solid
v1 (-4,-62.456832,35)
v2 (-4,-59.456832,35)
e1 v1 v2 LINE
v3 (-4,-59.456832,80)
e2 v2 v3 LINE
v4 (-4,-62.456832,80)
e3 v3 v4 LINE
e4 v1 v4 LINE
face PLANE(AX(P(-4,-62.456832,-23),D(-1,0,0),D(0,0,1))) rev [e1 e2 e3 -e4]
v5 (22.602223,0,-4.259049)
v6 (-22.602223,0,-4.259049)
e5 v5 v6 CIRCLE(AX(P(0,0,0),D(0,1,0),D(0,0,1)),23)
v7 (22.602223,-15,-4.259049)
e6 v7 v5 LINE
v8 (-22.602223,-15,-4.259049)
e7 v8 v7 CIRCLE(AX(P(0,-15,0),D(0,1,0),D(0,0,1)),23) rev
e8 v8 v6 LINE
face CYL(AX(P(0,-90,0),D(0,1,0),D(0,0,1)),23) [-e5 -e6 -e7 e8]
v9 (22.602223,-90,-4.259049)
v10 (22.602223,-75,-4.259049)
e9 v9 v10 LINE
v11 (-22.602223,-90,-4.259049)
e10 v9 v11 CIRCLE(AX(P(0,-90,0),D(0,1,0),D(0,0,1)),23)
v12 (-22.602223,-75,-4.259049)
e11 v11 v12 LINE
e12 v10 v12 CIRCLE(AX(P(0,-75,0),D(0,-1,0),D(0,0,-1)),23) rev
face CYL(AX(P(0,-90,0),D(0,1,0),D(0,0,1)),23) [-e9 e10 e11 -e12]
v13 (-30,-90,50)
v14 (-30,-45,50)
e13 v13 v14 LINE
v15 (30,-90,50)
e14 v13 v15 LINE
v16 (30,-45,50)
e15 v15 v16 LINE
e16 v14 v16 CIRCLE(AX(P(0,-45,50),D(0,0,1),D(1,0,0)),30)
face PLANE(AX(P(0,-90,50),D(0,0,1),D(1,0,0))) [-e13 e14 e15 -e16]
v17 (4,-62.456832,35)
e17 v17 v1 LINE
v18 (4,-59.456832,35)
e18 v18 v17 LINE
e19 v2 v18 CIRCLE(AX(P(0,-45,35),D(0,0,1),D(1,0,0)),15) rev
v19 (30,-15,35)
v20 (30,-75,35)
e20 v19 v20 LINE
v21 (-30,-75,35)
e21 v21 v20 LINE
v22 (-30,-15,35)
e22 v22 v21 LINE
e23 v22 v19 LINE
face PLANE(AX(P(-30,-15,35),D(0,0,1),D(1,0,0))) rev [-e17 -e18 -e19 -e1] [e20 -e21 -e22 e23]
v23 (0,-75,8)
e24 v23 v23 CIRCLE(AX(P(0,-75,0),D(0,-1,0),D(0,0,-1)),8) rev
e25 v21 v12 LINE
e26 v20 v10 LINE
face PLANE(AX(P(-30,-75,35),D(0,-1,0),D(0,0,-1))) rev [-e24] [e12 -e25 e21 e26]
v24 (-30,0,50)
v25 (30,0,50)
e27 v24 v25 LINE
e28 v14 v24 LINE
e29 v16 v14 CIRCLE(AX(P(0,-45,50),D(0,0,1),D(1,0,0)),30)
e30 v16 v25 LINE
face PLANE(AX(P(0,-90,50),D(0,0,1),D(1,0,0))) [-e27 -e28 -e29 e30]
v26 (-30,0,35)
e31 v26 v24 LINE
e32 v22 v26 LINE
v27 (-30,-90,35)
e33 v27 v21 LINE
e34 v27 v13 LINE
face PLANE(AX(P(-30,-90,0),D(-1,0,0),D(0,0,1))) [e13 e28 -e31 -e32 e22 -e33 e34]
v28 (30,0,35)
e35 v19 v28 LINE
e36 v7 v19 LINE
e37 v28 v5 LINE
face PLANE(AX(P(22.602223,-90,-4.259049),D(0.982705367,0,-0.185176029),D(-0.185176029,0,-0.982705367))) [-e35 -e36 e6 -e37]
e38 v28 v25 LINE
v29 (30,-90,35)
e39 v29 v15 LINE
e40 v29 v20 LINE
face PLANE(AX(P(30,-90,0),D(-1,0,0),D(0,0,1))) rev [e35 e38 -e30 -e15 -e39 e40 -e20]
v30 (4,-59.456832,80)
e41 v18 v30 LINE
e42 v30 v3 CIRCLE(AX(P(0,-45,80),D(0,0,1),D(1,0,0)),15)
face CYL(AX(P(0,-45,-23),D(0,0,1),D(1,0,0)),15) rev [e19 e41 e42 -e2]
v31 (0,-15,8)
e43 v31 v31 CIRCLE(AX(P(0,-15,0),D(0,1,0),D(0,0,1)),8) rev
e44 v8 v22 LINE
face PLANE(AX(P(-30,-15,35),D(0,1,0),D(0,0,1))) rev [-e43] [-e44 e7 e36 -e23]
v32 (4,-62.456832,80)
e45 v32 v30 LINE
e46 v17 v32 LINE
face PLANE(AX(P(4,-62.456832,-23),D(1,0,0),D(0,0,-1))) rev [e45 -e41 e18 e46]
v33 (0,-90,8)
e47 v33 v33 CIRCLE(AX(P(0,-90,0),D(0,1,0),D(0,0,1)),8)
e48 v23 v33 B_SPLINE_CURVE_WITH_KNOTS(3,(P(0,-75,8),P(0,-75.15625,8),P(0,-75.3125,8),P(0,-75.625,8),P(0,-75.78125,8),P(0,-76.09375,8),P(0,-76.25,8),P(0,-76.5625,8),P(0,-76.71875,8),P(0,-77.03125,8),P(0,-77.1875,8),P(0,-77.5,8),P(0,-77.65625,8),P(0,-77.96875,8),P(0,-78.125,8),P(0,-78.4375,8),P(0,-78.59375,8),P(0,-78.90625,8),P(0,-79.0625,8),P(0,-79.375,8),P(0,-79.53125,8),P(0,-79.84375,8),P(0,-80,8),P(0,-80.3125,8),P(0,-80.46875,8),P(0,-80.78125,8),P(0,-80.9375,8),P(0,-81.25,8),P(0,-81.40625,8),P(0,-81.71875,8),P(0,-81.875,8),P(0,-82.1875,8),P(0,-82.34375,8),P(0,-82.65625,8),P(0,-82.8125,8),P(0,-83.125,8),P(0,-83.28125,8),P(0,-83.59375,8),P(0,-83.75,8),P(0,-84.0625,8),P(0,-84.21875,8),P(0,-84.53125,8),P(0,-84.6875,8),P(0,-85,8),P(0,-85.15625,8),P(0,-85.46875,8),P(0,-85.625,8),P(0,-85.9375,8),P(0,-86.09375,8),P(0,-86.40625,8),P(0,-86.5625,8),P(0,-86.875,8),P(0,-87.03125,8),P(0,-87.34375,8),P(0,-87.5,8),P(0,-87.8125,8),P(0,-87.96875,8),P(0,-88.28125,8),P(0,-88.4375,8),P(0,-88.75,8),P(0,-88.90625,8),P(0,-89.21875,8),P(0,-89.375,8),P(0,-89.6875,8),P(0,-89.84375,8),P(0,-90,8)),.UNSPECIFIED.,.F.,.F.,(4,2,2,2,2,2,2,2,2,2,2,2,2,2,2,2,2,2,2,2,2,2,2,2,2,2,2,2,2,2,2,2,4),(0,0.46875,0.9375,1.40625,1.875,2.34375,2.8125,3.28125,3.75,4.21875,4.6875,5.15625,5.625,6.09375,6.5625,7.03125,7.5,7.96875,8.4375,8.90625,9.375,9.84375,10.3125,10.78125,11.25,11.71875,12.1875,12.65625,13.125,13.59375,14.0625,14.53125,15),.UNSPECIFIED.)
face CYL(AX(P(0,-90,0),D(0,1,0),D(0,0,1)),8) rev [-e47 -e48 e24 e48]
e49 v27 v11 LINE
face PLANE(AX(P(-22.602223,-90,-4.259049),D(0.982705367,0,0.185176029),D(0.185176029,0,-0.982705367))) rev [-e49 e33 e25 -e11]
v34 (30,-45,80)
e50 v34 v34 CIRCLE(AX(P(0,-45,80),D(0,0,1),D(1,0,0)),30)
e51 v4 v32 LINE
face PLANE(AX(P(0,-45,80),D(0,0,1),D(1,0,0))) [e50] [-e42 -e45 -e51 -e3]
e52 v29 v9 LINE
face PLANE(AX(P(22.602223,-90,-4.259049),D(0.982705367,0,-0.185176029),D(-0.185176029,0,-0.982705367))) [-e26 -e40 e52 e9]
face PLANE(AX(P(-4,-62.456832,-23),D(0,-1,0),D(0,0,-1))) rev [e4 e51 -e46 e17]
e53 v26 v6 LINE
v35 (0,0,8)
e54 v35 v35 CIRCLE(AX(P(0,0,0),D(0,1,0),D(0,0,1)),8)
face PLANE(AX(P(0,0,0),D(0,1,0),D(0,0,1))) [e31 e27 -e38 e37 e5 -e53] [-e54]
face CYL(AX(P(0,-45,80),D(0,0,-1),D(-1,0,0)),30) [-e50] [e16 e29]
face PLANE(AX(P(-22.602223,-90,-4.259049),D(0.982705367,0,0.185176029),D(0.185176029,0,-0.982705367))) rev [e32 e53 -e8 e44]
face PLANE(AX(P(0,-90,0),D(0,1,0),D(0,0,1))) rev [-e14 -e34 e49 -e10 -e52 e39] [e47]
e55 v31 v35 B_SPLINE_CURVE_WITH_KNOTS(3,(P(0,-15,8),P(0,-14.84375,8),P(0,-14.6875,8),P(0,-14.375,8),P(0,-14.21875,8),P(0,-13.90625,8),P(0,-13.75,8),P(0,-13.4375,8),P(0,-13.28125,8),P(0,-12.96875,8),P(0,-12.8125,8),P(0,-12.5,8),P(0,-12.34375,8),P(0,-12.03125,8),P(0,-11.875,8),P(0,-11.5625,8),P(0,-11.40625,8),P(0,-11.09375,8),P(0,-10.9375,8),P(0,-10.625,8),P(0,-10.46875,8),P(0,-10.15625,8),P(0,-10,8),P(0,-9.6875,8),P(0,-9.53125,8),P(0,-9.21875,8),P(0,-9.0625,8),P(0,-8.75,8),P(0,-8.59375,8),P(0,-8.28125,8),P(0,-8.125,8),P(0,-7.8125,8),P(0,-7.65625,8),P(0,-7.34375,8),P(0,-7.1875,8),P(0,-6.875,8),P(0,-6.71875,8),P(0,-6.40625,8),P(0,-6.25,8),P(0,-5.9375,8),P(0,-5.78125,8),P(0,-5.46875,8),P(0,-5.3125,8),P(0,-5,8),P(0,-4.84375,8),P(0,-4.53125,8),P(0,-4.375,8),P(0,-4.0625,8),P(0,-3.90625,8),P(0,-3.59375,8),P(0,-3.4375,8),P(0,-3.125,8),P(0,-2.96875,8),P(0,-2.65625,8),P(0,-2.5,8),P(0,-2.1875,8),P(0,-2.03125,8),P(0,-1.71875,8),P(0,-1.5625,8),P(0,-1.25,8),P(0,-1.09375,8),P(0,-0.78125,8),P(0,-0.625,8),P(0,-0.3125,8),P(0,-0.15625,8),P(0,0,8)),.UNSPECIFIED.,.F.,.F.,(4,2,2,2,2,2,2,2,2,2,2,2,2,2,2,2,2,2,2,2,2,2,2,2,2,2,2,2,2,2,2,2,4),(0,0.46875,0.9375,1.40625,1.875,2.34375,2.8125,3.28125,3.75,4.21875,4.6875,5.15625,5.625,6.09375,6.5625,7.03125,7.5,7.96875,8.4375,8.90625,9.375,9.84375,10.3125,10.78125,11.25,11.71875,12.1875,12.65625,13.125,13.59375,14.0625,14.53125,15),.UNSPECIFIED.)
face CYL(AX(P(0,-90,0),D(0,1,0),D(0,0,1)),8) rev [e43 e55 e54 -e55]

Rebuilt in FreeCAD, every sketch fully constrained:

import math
import FreeCAD as App
import Part
import Sketcher

V = App.Vector

doc = App.newDocument("Part")
body = doc.addObject("PartDesign::Body", "Body")

# Sketch on XZ plane
sketch1 = body.newObject("Sketcher::SketchObject", "Sketch")
sketch1.AttachmentSupport = (doc.getObject("XZ_Plane"), [""])
sketch1.MapMode = "FlatFace"
sketch1.addGeometry([
    Part.LineSegment(V(30, 35, 0), V(23, -4, 0)),  # 0
    Part.ArcOfCircle(Part.Circle(V(0, 0, 0), V(0, 0, 1), 23), math.radians(-169), math.radians(-11)),  # 1
    Part.LineSegment(V(-23, -4, 0), V(-30, 35, 0)),  # 2
    Part.LineSegment(V(-30, 35, 0), V(-30, 50, 0)),  # 3
    Part.LineSegment(V(-30, 50, 0), V(30, 50, 0)),  # 4
    Part.LineSegment(V(30, 50, 0), V(30, 35, 0)),  # 5
    Part.Circle(V(0, 0, 0), V(0, 0, 1), 8),  # 6
], False)
sketch1.addConstraint([
    Sketcher.Constraint("Tangent", 0, 2, 1, 2),
    Sketcher.Constraint("Tangent", 1, 1, 2, 1),
    Sketcher.Constraint("Coincident", 2, 2, 3, 1),
    Sketcher.Constraint("Coincident", 3, 2, 4, 1),
    Sketcher.Constraint("Coincident", 4, 2, 5, 1),
    Sketcher.Constraint("Coincident", 5, 2, 0, 1),
    Sketcher.Constraint("Vertical", 3),
    Sketcher.Constraint("Horizontal", 4),
    Sketcher.Constraint("Vertical", 5),
    Sketcher.Constraint("Coincident", 1, 3, -1, 1),
    Sketcher.Constraint("Coincident", 6, 3, -1, 1),
    Sketcher.Constraint("Symmetric", 2, 2, 5, 2, -2),
    Sketcher.Constraint("Diameter", 6, 16.0),
    Sketcher.Constraint("Radius", 1, 23.0),
    Sketcher.Constraint("DistanceX", 4, 1, 4, 2, 60.0),
    Sketcher.Constraint("DistanceY", 3, 1, 3, 2, 15.0),
    Sketcher.Constraint("DistanceY", -1, 1, 2, 2, 35.0),
])
pad1 = body.newObject("PartDesign::Pad", "Pad")
pad1.Profile = sketch1
pad1.Length = 90

# Sketch on XY plane
sketch2 = body.newObject("Sketcher::SketchObject", "Sketch001")
sketch2.AttachmentSupport = (doc.getObject("XY_Plane"), [""])
sketch2.MapMode = "FlatFace"
sketch2.AttachmentOffset = App.Placement(V(0, 0, 50), App.Rotation())
sketch2.addGeometry(Part.Circle(V(0, -45, 0), V(0, 0, 1), 30), False)
sketch2.addConstraint([
    Sketcher.Constraint("PointOnObject", 0, 3, -2),
    Sketcher.Constraint("Diameter", 0, 60.0),
    Sketcher.Constraint("DistanceY", 0, 3, -1, 1, 45.0),
])
pad2 = body.newObject("PartDesign::Pad", "Pad001")
pad2.Profile = sketch2
pad2.Length = 30

# Sketch on XY plane
sketch3 = body.newObject("Sketcher::SketchObject", "Sketch002")
sketch3.AttachmentSupport = (doc.getObject("XY_Plane"), [""])
sketch3.MapMode = "FlatFace"
sketch3.AttachmentOffset = App.Placement(V(0, 0, 80), App.Rotation())
sketch3.addGeometry([
    Part.LineSegment(V(-4, -62.5, 0), V(4, -62.5, 0)),
    Part.LineSegment(V(4, -62.5, 0), V(4, -59.5, 0)),
    Part.ArcOfCircle(Part.Circle(V(0, -45, 0), V(0, 0, 1), 15), math.radians(-75), math.radians(255)),
    Part.LineSegment(V(-4, -59.5, 0), V(-4, -62.5, 0)),
], False)
sketch3.addConstraint([
    Sketcher.Constraint("Coincident", 0, 2, 1, 1),
    Sketcher.Constraint("Coincident", 1, 2, 2, 1),
    Sketcher.Constraint("Coincident", 2, 2, 3, 1),
    Sketcher.Constraint("Coincident", 3, 2, 0, 1),
    Sketcher.Constraint("Horizontal", 0),
    Sketcher.Constraint("Vertical", 1),
    Sketcher.Constraint("Vertical", 3),
    Sketcher.Constraint("Symmetric", 1, 2, 2, 2, -2),
    Sketcher.Constraint("Radius", 2, 15.0),
    Sketcher.Constraint("DistanceX", 0, 1, 0, 2, 8.0),
    Sketcher.Constraint("DistanceY", 1, 1, 1, 2, 3.0),
    Sketcher.Constraint("DistanceY", 2, 3, -1, 1, 45.0),
])
pocket1 = body.newObject("PartDesign::Pocket", "Pocket")
pocket1.Profile = sketch3
pocket1.Type = "ThroughAll"

# Sketch on YZ plane
sketch4 = body.newObject("Sketcher::SketchObject", "Sketch003")
sketch4.AttachmentSupport = (doc.getObject("YZ_Plane"), [""])
sketch4.MapMode = "FlatFace"
sketch4.AttachmentOffset = App.Placement(V(0, 0, 30), App.Rotation())
sketch4.addGeometry([
    Part.LineSegment(V(-15, 35, 0), V(-75, 35, 0)),
    Part.LineSegment(V(-75, 35, 0), V(-75, -23, 0)),
    Part.LineSegment(V(-75, -23, 0), V(-15, -23, 0)),
    Part.LineSegment(V(-15, -23, 0), V(-15, 35, 0)),
], False)
sketch4.addConstraint([
    Sketcher.Constraint("Coincident", 0, 2, 1, 1),
    Sketcher.Constraint("Coincident", 1, 2, 2, 1),
    Sketcher.Constraint("Coincident", 2, 2, 3, 1),
    Sketcher.Constraint("Coincident", 3, 2, 0, 1),
    Sketcher.Constraint("Horizontal", 0),
    Sketcher.Constraint("Vertical", 1),
    Sketcher.Constraint("Horizontal", 2),
    Sketcher.Constraint("Vertical", 3),
    Sketcher.Constraint("DistanceX", 0, 2, 0, 1, 60.0),
    Sketcher.Constraint("DistanceY", 1, 2, 1, 1, 58.0),
    Sketcher.Constraint("DistanceX", 0, 2, -1, 1, 75.0),
    Sketcher.Constraint("DistanceY", -1, 1, 0, 2, 35.0),
])
pocket2 = body.newObject("PartDesign::Pocket", "Pocket001")
pocket2.Profile = sketch4
pocket2.Type = "ThroughAll"

doc.recompute()
